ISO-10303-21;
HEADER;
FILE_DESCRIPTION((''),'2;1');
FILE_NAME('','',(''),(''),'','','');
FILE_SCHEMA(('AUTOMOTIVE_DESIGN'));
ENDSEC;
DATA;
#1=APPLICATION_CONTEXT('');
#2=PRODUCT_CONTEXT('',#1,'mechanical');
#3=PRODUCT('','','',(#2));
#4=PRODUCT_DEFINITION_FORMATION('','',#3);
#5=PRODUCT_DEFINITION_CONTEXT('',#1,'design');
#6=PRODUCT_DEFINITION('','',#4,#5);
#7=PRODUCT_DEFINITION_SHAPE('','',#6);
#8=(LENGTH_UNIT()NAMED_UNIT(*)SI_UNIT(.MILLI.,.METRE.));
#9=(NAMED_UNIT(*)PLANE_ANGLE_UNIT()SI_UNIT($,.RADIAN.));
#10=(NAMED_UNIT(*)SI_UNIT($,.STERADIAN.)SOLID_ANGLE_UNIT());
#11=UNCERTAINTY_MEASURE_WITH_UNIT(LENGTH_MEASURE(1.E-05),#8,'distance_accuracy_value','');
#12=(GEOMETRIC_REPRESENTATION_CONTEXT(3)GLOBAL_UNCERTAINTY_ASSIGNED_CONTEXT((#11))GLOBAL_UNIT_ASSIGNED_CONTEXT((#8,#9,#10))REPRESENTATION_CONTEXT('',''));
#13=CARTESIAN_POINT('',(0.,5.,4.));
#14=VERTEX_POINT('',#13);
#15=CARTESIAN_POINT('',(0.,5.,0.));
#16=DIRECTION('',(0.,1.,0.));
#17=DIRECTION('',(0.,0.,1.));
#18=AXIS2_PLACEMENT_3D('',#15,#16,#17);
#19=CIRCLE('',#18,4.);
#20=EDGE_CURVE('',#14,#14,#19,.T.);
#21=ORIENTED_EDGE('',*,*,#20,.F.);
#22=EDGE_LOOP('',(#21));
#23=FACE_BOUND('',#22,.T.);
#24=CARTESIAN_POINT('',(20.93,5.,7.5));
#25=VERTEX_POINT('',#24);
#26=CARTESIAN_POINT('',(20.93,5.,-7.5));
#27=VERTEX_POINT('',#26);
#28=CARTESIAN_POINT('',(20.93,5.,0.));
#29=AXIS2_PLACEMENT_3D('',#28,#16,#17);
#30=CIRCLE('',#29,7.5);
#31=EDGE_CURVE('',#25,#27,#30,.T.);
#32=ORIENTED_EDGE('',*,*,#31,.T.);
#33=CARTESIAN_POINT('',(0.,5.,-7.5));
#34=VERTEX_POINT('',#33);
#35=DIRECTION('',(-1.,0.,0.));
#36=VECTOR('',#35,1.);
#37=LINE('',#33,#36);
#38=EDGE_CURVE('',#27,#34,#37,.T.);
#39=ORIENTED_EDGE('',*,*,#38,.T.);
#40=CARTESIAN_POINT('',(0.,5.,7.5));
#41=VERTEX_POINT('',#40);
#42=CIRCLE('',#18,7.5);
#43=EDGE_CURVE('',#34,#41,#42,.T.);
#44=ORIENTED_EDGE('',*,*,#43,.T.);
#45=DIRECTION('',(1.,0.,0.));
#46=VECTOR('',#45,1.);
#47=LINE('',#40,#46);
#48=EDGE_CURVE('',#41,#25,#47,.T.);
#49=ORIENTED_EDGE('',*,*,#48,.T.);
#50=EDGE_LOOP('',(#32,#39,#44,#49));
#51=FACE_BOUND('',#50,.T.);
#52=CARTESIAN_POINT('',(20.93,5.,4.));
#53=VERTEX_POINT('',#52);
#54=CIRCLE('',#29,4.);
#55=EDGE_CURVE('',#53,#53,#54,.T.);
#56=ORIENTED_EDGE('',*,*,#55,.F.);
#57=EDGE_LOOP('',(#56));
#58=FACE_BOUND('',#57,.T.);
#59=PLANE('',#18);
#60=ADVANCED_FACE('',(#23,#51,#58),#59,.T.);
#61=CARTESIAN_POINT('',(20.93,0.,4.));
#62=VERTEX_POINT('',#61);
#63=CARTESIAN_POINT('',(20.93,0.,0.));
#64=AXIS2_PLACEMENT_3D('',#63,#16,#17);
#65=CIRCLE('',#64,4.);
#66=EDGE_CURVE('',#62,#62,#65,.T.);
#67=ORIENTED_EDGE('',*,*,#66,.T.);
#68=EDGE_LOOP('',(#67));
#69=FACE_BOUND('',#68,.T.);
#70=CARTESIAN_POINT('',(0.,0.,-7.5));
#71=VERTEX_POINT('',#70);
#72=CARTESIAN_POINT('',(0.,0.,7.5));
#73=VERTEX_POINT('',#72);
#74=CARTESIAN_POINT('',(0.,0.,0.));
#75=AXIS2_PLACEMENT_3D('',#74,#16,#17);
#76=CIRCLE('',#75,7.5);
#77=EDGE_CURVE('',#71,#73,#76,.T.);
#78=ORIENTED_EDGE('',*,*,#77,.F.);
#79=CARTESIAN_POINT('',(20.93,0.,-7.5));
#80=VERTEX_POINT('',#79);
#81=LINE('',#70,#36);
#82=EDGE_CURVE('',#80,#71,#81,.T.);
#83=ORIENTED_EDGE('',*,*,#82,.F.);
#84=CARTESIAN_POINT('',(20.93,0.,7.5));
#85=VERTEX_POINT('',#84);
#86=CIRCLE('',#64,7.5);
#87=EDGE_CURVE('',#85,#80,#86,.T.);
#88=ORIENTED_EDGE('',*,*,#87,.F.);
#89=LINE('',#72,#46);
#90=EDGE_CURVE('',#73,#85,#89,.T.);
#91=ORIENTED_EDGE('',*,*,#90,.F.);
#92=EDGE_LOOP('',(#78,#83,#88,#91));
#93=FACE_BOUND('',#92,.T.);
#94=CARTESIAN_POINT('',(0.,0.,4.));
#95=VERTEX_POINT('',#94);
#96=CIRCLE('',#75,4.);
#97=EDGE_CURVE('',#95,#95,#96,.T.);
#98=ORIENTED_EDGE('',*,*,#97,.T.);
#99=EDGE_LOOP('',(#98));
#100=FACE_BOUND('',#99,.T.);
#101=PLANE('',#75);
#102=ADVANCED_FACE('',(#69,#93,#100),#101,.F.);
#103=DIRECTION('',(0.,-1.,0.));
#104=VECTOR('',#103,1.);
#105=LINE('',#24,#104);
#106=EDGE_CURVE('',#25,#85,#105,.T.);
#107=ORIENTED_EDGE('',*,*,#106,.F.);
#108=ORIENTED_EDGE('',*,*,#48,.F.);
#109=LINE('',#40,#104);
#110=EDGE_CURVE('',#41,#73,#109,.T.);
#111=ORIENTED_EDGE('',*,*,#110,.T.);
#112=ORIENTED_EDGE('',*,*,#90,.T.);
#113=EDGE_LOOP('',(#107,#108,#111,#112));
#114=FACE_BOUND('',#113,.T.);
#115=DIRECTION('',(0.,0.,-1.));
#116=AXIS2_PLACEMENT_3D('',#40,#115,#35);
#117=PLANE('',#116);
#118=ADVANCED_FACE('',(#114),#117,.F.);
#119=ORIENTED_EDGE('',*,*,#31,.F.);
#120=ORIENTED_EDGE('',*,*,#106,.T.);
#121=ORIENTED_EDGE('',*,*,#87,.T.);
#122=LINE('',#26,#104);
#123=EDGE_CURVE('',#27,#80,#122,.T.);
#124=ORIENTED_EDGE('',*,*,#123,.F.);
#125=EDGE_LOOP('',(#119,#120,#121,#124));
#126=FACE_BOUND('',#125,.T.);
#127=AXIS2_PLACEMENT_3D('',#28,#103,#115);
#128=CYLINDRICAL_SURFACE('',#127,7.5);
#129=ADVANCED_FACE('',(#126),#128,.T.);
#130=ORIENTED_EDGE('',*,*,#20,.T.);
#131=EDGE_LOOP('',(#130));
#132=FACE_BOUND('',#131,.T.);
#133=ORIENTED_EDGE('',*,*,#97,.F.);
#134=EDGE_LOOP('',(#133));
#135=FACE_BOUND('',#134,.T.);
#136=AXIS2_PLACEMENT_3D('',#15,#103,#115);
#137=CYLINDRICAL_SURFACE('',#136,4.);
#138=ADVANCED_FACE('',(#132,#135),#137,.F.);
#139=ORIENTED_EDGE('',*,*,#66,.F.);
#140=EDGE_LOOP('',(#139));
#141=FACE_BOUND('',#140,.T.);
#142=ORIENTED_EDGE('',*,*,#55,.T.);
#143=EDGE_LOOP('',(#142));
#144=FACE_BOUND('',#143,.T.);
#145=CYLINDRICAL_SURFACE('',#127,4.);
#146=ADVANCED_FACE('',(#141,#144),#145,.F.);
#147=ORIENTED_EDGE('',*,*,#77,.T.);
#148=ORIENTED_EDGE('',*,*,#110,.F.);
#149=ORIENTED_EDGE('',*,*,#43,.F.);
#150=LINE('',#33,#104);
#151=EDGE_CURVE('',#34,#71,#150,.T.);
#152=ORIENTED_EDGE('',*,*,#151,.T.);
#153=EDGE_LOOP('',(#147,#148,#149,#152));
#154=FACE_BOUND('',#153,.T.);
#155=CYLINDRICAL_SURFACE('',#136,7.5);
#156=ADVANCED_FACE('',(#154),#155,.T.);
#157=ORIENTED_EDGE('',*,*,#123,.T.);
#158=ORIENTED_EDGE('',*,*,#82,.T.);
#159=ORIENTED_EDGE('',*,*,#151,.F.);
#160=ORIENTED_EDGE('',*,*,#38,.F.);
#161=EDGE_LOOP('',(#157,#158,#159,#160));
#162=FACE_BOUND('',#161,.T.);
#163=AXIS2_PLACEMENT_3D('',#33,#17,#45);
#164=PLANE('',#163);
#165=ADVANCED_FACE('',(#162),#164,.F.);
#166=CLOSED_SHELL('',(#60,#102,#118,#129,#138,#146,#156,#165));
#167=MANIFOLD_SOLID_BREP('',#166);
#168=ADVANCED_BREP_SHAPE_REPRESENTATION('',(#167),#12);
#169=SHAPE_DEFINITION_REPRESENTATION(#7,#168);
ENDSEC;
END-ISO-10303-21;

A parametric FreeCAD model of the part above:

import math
import FreeCAD as App
import Part
import Sketcher

V = App.Vector
Q = App.Units.Quantity

doc = App.newDocument("Part")
body = doc.addObject("PartDesign::Body", "Body")

# Sketch on XZ plane
sketch1 = body.newObject("Sketcher::SketchObject", "Sketch")
sketch1.AttachmentSupport = (doc.getObject("XZ_Plane"), [""])
sketch1.MapMode = "FlatFace"
sketch1.addGeometry(Part.LineSegment(V(20.93, -7.5, 0), V(0, -7.5, 0)), False)
sketch1.addGeometry(Part.ArcOfCircle(Part.Circle(V(0, 0, 0), V(0, 0, 1), 7.5), math.radians(90), math.radians(270)), False)
sketch1.addGeometry(Part.LineSegment(V(0, 7.5, 0), V(20.93, 7.5, 0)), False)
sketch1.addGeometry(Part.ArcOfCircle(Part.Circle(V(20.93, 0, 0), V(0, 0, 1), 7.5), math.radians(-90), math.radians(90)), False)
sketch1.addGeometry(Part.Circle(V(20.93, 0, 0), V(0, 0, 1), 4), False)
sketch1.addGeometry(Part.Circle(V(0, 0, 0), V(0, 0, 1), 4), False)
sketch1.addConstraint(Sketcher.Constraint("Tangent", 0, 2, 1, 2))
sketch1.addConstraint(Sketcher.Constraint("Tangent", 1, 1, 2, 1))
sketch1.addConstraint(Sketcher.Constraint("Tangent", 2, 2, 3, 2))
sketch1.addConstraint(Sketcher.Constraint("Tangent", 3, 1, 0, 1))
sketch1.addConstraint(Sketcher.Constraint("Horizontal", 0))
sketch1.addConstraint(Sketcher.Constraint("Horizontal", 2))
sketch1.addConstraint(Sketcher.Constraint("Coincident", 1, 3, -1, 1))
sketch1.addConstraint(Sketcher.Constraint("Coincident", 5, 3, -1, 1))
sketch1.addConstraint(Sketcher.Constraint("Coincident", 4, 3, 3, 3))
sketch1.addConstraint(Sketcher.Constraint("Equal", 4, 5))
sketch1.addConstraint(Sketcher.Constraint("Diameter", 4, Q("8 mm")))
sketch1.addConstraint(Sketcher.Constraint("Radius", 1, Q("7.5 mm")))
sketch1.addConstraint(Sketcher.Constraint("DistanceX", 0, 2, 0, 1, Q("20.93 mm")))
pad1 = body.newObject("PartDesign::Pad", "Pad")
pad1.Profile = sketch1
pad1.Length = 5
pad1.Reversed = True

doc.recompute()
